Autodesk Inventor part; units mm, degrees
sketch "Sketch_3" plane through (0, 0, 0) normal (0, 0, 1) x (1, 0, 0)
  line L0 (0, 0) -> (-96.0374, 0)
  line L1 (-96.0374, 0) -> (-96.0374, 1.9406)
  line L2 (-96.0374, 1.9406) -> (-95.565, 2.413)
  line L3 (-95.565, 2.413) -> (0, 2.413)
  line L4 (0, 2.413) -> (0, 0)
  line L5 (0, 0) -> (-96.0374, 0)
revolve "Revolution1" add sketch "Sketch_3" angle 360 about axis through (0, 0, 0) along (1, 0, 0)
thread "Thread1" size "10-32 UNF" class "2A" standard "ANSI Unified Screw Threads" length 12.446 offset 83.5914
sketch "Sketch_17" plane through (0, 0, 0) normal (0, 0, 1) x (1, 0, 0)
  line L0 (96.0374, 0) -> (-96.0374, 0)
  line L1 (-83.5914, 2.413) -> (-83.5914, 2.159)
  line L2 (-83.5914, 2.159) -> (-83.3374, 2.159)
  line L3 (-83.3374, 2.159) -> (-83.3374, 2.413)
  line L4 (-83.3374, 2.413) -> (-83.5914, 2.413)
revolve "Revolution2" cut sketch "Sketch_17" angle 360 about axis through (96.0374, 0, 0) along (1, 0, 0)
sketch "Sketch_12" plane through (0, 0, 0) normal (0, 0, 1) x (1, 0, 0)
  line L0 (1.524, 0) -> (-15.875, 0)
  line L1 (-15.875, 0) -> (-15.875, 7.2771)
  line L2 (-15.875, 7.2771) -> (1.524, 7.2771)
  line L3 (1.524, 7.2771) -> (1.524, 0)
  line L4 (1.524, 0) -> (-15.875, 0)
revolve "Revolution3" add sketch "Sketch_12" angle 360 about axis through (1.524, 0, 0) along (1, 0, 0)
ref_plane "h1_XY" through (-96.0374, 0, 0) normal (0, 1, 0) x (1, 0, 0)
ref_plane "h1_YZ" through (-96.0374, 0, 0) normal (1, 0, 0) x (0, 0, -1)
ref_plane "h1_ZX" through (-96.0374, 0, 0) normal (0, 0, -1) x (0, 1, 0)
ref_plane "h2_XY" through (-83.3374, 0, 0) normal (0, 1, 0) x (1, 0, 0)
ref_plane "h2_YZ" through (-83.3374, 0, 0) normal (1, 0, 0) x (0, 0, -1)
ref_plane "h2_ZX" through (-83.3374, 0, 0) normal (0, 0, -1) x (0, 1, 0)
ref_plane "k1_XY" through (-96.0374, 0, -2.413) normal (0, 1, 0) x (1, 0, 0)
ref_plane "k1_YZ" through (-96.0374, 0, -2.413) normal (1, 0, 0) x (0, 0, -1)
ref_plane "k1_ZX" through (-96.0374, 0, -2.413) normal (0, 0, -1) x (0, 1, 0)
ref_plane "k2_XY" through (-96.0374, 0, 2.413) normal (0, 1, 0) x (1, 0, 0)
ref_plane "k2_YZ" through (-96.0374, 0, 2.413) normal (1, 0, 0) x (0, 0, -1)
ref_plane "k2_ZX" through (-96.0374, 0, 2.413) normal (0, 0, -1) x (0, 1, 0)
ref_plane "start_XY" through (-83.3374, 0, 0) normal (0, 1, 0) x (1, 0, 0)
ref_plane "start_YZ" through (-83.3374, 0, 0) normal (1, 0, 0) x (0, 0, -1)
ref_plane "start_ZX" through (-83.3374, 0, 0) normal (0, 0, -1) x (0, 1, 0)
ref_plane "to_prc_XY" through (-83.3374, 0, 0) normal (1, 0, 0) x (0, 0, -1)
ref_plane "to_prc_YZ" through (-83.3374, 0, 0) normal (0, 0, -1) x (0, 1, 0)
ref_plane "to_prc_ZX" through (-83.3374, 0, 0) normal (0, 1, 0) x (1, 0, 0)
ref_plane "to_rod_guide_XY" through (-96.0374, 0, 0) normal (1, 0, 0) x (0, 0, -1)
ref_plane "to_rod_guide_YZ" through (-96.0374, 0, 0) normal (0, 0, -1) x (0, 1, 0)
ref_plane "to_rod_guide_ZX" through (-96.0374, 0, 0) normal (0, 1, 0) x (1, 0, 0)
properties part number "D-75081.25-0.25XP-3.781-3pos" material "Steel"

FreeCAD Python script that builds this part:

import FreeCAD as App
import Part
import Sketcher
Q = App.Units.Quantity

doc = App.newDocument("Part")
params = doc.addObject("Spreadsheet::Sheet", "Params")
for row, (alias, value) in enumerate([
    ("sketch1_width", "3.781 in"),
    ("sketch1_height", "0.095 in"),
    ("revolution_angle", "360 deg"),
    ("sketch2_width", "0.01 in"),
    ("groove_angle", "360 deg"),
    ("sketch3_width", "0.685 in"),
    ("revolution2_angle", "360 deg"),
], start=1):
    params.set(f"A{row}", alias)
    params.set(f"B{row}", "=" + value)
    params.setAlias(f"B{row}", alias)

body = doc.addObject("PartDesign::Body", "Body")

# Sketch on XY plane
sketch1 = body.newObject("Sketcher::SketchObject", "Sketch")
sketch1.AttachmentSupport = (doc.getObject("XY_Plane"), [""])
sketch1.MapMode = "FlatFace"
sketch1.addGeometry([
    Part.LineSegment(App.Vector(-96, 0, 0), App.Vector(0, 0, 0)),  # 0
    Part.LineSegment(App.Vector(0, 0, 0), App.Vector(0, 2.4, 0)),  # 1
    Part.LineSegment(App.Vector(0, 2.4, 0), App.Vector(-95.6, 2.4, 0)),  # 2
    Part.LineSegment(App.Vector(-95.6, 2.4, 0), App.Vector(-96, 1.9, 0)),  # 3
    Part.LineSegment(App.Vector(-96, 1.9, 0), App.Vector(-96, 0, 0)),  # 4
], False)
sketch1.addConstraint([
    Sketcher.Constraint("Coincident", 0, 2, 1, 1),
    Sketcher.Constraint("Coincident", 1, 2, 2, 1),
    Sketcher.Constraint("Coincident", 2, 2, 3, 1),
    Sketcher.Constraint("Coincident", 3, 2, 4, 1),
    Sketcher.Constraint("Coincident", 4, 2, 0, 1),
    Sketcher.Constraint("Horizontal", 0),
    Sketcher.Constraint("Vertical", 1),
    Sketcher.Constraint("Horizontal", 2),
    Sketcher.Constraint("Vertical", 4),
    Sketcher.Constraint("Coincident", 0, 2, -1, 1),
    Sketcher.Constraint("Angle", 3, Q("-135 deg")),
    Sketcher.Constraint("DistanceX", 0, 1, 0, 2, Q("3.781 in")),
    Sketcher.Constraint("DistanceY", 1, 1, 1, 2, Q("0.095 in")),
    Sketcher.Constraint("DistanceX", 2, 2, 2, 1, Q("3.7624 in")),
])
sketch1.setExpression("Constraints[11]", "Params.sketch1_width")
sketch1.setExpression("Constraints[12]", "Params.sketch1_height")
revolution = body.newObject("PartDesign::Revolution", "Revolution")
revolution.Profile = sketch1
revolution.ReferenceAxis = (sketch1, ["H_Axis"])
revolution.setExpression("Angle", "Params.revolution_angle")

# Sketch on XY plane
sketch2 = body.newObject("Sketcher::SketchObject", "Sketch001")
sketch2.AttachmentSupport = (doc.getObject("XY_Plane"), [""])
sketch2.MapMode = "FlatFace"
sketch2.addGeometry([
    Part.LineSegment(App.Vector(-83.34, 2.41, 0), App.Vector(-83.59, 2.41, 0)),
    Part.LineSegment(App.Vector(-83.59, 2.41, 0), App.Vector(-83.59, 2.16, 0)),
    Part.LineSegment(App.Vector(-83.59, 2.16, 0), App.Vector(-83.34, 2.16, 0)),
    Part.LineSegment(App.Vector(-83.34, 2.16, 0), App.Vector(-83.34, 2.41, 0)),
], False)
sketch2.addConstraint([
    Sketcher.Constraint("Coincident", 0, 2, 1, 1),
    Sketcher.Constraint("Coincident", 1, 2, 2, 1),
    Sketcher.Constraint("Coincident", 2, 2, 3, 1),
    Sketcher.Constraint("Coincident", 3, 2, 0, 1),
    Sketcher.Constraint("Horizontal", 0),
    Sketcher.Constraint("Vertical", 1),
    Sketcher.Constraint("Horizontal", 2),
    Sketcher.Constraint("Vertical", 3),
    Sketcher.Constraint("Equal", 2, 1),
    Sketcher.Constraint("DistanceX", 0, 2, 0, 1, Q("0.01 in")),
    Sketcher.Constraint("DistanceX", 0, 2, -1, 1, Q("3.291 in")),
    Sketcher.Constraint("DistanceY", -1, 1, 0, 2, Q("0.095 in")),
])
sketch2.setExpression("Constraints[9]", "Params.sketch2_width")
groove = body.newObject("PartDesign::Groove", "Groove")
groove.Profile = sketch2
groove.ReferenceAxis = (sketch2, ["H_Axis"])
groove.setExpression("Angle", "Params.groove_angle")

# Sketch on XY plane
sketch3 = body.newObject("Sketcher::SketchObject", "Sketch002")
sketch3.AttachmentSupport = (doc.getObject("XY_Plane"), [""])
sketch3.MapMode = "FlatFace"
sketch3.addGeometry([
    Part.LineSegment(App.Vector(-16, 0, 0), App.Vector(2, 0, 0)),
    Part.LineSegment(App.Vector(2, 0, 0), App.Vector(2, 7, 0)),
    Part.LineSegment(App.Vector(2, 7, 0), App.Vector(-16, 7, 0)),
    Part.LineSegment(App.Vector(-16, 7, 0), App.Vector(-16, 0, 0)),
], False)
sketch3.addConstraint([
    Sketcher.Constraint("Coincident", 0, 2, 1, 1),
    Sketcher.Constraint("Coincident", 1, 2, 2, 1),
    Sketcher.Constraint("Coincident", 2, 2, 3, 1),
    Sketcher.Constraint("Coincident", 3, 2, 0, 1),
    Sketcher.Constraint("Horizontal", 0),
    Sketcher.Constraint("Vertical", 1),
    Sketcher.Constraint("Horizontal", 2),
    Sketcher.Constraint("Vertical", 3),
    Sketcher.Constraint("PointOnObject", 0, 2, -1),
    Sketcher.Constraint("DistanceX", 0, 1, 0, 2, Q("0.685 in")),
    Sketcher.Constraint("DistanceX", -1, 1, 0, 2, Q("0.06 in")),
    Sketcher.Constraint("DistanceY", 1, 1, 1, 2, Q("0.2865 in")),
])
sketch3.setExpression("Constraints[9]", "Params.sketch3_width")
revolution2 = body.newObject("PartDesign::Revolution", "Revolution001")
revolution2.Profile = sketch3
revolution2.ReferenceAxis = (sketch3, ["H_Axis"])
revolution2.setExpression("Angle", "Params.revolution2_angle")

doc.recompute()
